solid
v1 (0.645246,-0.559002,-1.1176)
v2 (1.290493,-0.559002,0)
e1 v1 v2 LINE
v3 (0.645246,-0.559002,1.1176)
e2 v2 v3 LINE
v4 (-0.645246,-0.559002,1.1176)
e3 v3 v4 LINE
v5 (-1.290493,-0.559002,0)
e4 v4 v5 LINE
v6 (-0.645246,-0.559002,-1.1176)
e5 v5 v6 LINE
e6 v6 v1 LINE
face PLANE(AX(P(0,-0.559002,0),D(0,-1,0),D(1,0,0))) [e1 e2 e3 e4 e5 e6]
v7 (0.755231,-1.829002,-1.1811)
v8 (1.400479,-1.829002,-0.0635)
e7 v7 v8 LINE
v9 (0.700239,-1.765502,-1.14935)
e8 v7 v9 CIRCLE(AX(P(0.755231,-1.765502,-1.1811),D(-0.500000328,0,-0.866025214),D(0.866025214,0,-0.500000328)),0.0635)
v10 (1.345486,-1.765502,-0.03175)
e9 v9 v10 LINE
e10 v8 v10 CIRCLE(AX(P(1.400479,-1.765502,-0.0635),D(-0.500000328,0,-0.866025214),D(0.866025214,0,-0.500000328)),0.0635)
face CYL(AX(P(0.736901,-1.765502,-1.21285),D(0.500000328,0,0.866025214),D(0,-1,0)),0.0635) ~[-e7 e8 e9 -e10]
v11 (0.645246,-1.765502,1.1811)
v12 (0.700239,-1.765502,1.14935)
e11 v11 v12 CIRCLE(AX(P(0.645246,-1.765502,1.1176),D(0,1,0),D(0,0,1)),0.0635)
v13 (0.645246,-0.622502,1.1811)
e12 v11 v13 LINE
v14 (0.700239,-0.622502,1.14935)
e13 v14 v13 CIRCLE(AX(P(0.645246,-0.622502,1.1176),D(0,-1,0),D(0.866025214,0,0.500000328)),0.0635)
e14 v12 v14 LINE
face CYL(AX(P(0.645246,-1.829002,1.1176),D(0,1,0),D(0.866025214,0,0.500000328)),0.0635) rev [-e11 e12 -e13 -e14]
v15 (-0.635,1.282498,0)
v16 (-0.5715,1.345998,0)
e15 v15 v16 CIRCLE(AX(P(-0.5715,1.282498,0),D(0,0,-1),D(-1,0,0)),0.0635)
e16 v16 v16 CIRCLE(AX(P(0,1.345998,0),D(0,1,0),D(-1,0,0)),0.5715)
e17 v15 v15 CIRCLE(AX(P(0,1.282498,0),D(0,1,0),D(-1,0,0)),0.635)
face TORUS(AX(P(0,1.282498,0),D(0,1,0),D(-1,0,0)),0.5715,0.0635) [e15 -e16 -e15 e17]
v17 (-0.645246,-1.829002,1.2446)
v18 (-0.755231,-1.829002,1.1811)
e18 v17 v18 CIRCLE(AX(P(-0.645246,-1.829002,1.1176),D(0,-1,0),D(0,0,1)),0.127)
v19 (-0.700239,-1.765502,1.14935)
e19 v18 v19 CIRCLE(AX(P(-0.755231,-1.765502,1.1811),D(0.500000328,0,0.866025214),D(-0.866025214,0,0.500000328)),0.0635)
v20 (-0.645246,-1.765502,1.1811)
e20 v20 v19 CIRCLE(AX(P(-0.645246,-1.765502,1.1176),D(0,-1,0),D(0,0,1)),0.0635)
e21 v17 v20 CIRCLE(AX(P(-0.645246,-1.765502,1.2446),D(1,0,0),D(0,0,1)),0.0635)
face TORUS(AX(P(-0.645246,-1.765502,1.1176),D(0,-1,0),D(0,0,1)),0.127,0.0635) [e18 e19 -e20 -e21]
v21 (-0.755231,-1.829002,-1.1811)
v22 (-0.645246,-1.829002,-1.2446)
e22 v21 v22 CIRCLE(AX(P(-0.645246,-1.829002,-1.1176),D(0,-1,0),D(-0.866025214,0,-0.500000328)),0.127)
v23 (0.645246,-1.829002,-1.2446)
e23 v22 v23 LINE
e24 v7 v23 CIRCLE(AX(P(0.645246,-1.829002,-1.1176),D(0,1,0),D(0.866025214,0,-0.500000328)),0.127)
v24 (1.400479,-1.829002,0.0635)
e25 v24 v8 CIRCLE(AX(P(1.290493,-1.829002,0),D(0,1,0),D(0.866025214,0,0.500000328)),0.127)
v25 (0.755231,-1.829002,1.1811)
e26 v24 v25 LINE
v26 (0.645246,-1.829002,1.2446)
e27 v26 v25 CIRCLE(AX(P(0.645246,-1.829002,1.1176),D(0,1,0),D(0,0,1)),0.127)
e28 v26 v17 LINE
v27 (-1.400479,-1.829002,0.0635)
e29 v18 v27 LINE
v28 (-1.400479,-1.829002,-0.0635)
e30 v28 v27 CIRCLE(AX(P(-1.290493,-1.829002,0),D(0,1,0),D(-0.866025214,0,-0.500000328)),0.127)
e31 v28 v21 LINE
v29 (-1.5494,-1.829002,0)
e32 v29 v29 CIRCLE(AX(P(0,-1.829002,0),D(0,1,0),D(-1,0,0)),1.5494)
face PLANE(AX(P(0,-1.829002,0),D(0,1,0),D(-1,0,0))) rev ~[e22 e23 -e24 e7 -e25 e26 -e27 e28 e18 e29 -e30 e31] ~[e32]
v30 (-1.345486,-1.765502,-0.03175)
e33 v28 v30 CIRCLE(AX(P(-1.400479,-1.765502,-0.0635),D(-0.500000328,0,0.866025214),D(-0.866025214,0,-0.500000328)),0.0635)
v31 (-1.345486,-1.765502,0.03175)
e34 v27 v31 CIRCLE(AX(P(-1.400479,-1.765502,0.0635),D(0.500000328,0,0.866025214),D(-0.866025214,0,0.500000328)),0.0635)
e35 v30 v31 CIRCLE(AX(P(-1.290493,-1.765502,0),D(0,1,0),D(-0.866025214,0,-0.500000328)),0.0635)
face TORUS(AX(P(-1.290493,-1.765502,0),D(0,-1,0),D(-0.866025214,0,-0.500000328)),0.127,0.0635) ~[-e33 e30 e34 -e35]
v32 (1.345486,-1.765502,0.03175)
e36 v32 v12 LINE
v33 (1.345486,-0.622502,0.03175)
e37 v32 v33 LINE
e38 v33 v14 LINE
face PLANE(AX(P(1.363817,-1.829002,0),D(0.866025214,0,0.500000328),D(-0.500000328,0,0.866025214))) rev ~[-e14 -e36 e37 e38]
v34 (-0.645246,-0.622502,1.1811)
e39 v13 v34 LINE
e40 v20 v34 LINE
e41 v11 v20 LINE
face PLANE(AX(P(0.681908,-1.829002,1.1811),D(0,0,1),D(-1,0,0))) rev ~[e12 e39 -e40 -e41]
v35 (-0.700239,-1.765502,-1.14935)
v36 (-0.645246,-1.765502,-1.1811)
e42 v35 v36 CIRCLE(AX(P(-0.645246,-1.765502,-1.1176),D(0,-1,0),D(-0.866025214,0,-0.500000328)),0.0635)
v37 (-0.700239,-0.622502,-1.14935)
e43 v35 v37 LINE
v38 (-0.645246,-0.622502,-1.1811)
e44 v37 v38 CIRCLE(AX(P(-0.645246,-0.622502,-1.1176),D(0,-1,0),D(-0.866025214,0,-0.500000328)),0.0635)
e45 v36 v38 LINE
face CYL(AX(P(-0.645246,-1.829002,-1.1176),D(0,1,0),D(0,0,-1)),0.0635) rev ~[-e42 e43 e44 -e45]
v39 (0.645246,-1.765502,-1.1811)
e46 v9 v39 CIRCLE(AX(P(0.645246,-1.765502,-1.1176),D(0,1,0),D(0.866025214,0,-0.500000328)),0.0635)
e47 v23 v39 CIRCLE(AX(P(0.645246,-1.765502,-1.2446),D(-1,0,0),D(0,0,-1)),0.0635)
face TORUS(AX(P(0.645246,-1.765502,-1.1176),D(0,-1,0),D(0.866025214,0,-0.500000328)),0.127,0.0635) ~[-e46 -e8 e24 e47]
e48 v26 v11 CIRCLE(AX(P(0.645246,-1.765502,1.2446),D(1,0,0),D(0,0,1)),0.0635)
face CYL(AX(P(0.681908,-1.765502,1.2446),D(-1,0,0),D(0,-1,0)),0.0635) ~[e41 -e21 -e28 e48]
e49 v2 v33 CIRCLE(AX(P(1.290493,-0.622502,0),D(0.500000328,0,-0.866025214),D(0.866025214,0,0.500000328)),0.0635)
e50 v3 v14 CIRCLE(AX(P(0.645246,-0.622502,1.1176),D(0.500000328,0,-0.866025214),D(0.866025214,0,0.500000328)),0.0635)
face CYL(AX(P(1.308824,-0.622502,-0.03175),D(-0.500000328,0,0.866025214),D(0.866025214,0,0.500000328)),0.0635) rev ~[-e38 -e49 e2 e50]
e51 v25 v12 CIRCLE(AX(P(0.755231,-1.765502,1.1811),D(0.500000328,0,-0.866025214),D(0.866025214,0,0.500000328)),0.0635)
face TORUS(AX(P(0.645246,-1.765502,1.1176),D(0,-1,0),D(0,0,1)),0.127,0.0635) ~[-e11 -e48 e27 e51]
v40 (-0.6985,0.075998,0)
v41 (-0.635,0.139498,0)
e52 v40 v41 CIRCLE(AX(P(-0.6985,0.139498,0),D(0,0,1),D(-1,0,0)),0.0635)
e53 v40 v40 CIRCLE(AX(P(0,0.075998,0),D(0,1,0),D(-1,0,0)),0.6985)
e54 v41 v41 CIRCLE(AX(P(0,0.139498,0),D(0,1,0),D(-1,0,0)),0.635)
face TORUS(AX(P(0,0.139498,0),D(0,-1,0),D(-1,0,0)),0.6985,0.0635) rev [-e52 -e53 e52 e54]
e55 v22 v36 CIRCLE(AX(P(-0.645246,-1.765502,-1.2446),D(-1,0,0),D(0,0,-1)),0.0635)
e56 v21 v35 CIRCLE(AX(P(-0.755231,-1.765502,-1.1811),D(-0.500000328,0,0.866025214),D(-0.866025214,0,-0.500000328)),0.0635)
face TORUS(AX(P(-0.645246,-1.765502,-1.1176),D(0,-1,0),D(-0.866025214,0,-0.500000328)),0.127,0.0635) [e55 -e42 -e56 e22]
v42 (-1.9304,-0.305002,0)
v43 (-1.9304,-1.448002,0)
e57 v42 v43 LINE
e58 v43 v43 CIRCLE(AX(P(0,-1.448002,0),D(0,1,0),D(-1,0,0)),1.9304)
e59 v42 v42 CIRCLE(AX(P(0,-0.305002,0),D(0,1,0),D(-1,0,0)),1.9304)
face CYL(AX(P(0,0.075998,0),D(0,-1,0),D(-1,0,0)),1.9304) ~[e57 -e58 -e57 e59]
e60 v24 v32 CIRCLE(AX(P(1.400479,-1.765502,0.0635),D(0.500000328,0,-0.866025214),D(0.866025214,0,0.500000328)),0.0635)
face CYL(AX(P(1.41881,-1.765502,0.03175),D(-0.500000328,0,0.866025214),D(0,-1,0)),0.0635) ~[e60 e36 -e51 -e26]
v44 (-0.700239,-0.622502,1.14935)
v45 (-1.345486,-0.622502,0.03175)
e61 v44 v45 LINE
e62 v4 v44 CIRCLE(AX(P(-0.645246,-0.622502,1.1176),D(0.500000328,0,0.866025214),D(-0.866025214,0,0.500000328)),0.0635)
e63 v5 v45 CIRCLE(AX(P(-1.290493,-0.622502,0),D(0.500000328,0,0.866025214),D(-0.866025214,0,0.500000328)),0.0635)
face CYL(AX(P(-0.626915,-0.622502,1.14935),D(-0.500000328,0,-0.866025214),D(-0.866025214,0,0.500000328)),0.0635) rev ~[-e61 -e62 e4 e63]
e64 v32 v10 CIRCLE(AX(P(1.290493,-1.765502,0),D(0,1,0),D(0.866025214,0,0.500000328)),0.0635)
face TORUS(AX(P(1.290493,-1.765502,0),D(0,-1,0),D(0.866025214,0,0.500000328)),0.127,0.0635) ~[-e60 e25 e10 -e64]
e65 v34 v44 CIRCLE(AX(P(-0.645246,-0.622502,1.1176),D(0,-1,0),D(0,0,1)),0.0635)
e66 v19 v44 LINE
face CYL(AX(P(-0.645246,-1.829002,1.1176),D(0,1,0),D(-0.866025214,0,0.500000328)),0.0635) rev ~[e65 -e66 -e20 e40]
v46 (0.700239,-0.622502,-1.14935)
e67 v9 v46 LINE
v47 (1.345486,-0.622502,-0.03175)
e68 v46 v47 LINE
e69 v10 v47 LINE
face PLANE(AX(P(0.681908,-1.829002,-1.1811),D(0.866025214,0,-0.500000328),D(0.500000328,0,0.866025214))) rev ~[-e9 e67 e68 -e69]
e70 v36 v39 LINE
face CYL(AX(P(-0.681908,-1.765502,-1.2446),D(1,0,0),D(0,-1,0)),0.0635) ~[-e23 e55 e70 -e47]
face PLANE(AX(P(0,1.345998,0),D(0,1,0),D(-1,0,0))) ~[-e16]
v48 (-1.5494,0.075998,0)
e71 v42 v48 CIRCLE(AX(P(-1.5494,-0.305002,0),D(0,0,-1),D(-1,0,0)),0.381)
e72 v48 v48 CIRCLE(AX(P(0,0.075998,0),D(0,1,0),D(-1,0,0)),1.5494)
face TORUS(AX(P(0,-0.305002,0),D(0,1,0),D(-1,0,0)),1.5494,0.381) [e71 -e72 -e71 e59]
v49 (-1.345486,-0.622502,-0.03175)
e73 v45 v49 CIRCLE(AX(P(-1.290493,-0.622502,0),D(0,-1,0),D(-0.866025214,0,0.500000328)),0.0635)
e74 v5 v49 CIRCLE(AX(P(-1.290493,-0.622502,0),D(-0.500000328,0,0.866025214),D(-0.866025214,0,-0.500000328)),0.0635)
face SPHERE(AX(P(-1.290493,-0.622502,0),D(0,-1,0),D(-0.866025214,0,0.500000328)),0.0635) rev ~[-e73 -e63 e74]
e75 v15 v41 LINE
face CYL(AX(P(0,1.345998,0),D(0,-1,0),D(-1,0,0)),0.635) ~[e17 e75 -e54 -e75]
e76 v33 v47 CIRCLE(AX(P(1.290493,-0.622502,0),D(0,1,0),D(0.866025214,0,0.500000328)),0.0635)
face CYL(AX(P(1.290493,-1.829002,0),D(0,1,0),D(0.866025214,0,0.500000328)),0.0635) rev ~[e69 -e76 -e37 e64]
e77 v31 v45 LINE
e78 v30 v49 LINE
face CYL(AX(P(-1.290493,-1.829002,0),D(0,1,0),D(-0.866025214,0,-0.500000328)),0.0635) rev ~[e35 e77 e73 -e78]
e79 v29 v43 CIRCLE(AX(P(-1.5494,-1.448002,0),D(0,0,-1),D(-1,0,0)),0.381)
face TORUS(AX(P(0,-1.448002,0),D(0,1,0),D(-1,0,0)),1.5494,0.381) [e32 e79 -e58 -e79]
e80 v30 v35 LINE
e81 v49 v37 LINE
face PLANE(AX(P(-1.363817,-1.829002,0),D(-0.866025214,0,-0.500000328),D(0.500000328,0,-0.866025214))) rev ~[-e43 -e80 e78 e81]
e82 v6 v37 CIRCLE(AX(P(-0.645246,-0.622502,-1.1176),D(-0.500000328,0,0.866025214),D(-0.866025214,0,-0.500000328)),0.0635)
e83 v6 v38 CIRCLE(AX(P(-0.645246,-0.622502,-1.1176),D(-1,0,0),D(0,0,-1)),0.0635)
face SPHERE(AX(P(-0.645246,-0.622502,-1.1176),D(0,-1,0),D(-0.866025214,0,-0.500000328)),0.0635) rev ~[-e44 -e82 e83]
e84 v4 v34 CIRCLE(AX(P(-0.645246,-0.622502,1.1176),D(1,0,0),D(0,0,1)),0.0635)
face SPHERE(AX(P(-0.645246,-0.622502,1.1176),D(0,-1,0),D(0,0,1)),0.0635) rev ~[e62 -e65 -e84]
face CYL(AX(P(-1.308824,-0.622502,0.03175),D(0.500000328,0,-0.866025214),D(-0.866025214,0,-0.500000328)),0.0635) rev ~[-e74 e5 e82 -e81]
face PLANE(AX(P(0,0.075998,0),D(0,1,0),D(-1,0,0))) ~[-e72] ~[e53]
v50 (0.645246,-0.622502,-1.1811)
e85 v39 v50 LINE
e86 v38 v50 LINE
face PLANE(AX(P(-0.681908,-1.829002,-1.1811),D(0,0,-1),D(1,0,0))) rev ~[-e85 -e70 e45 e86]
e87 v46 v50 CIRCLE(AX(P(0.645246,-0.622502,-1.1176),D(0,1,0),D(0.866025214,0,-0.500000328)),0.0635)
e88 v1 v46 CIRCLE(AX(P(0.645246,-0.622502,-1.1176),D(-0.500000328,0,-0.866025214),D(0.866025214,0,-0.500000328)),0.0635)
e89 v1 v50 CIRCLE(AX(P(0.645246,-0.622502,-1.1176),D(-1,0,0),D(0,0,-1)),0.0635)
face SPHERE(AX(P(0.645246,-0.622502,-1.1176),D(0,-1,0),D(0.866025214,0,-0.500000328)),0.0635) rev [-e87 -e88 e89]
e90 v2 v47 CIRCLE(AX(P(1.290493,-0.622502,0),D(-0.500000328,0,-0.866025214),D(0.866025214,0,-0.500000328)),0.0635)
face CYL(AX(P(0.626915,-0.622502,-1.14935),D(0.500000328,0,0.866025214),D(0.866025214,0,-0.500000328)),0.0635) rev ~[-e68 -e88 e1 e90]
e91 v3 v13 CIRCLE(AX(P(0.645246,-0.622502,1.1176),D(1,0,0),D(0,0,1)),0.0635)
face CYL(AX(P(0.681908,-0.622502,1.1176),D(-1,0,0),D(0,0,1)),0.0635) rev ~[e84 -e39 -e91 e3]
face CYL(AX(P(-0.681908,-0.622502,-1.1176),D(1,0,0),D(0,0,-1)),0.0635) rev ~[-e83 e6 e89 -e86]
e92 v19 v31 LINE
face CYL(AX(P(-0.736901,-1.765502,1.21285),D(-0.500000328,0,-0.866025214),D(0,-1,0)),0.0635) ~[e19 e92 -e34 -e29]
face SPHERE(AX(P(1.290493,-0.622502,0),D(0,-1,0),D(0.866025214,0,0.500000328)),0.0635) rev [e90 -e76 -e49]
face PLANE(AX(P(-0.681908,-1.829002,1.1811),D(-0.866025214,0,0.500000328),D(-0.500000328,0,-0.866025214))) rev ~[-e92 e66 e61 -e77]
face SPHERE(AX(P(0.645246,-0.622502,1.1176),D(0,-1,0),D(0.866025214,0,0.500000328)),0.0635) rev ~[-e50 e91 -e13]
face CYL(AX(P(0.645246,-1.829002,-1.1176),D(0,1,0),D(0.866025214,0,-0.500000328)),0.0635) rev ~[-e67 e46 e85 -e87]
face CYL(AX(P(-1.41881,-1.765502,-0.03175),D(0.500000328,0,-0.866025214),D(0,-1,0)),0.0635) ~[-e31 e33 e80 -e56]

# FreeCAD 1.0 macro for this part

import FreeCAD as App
import Part
import Sketcher

V = App.Vector
Q = App.Units.Quantity


def edges_at(feature, points):
    """Names of the edges that pass closest to the given points."""
    edges = feature.Shape.Edges
    near = lambda p: min(range(len(edges)), key=lambda i: edges[i].distToShape(Part.Vertex(*p))[0])
    return sorted({f"Edge{near(p) + 1}" for p in points})

doc = App.newDocument("Part")
params = doc.addObject("Spreadsheet::Sheet", "Params")
for row, (alias, value) in enumerate([
    ("sketch1_height", "0.05 in"),
    ("sketch1_width", "0.076 in"),
    ("sketch1_width2", "0.025 in"),
    ("sketch1_height2", "0.125 in"),
    ("revolution_angle", "360 deg"),
    ("pocket1_length", "0.05 in"),
    ("fillet_radius", "0.015 in"),
    ("fillet2_radius", "0.0025 in"),
], start=1):
    params.set(f"A{row}", alias)
    params.set(f"B{row}", "=" + value)
    params.setAlias(f"B{row}", alias)

body = doc.addObject("PartDesign::Body", "Body")

# Sketch on XY plane
sketch1 = doc.addObject("Sketcher::SketchObject", "Sketch")
body.addObject(sketch1)
sketch1.AttachmentSupport = (doc.XY_Plane, [""])
sketch1.MapMode = "FlatFace"
sketch1.addGeometry(Part.LineSegment(V(-1.9, -1.8, 0), V(0, -1.8, 0)), False)
sketch1.addGeometry(Part.LineSegment(V(0, -1.8, 0), V(0, 1.3, 0)), False)
sketch1.addGeometry(Part.LineSegment(V(0, 1.3, 0), V(-0.6, 1.3, 0)), False)
sketch1.addGeometry(Part.LineSegment(V(-0.6, 1.3, 0), V(-0.6, 0.1, 0)), False)
sketch1.addGeometry(Part.LineSegment(V(-0.6, 0.1, 0), V(-1.9, 0.1, 0)), False)
sketch1.addGeometry(Part.LineSegment(V(-1.9, 0.1, 0), V(-1.9, -1.8, 0)), False)
sketch1.addConstraint(Sketcher.Constraint("Coincident", 0, 2, 1, 1))
sketch1.addConstraint(Sketcher.Constraint("Coincident", 1, 2, 2, 1))
sketch1.addConstraint(Sketcher.Constraint("Coincident", 2, 2, 3, 1))
sketch1.addConstraint(Sketcher.Constraint("Coincident", 3, 2, 4, 1))
sketch1.addConstraint(Sketcher.Constraint("Coincident", 4, 2, 5, 1))
sketch1.addConstraint(Sketcher.Constraint("Coincident", 5, 2, 0, 1))
sketch1.addConstraint(Sketcher.Constraint("Horizontal", 0))
sketch1.addConstraint(Sketcher.Constraint("Vertical", 1))
sketch1.addConstraint(Sketcher.Constraint("Horizontal", 2))
sketch1.addConstraint(Sketcher.Constraint("Vertical", 3))
sketch1.addConstraint(Sketcher.Constraint("Horizontal", 4))
sketch1.addConstraint(Sketcher.Constraint("Vertical", 5))
sketch1.addConstraint(Sketcher.Constraint("PointOnObject", 0, 2, -2))
sketch1.addConstraint(Sketcher.Constraint("DistanceY", 3, 2, 3, 1, Q("0.05 in")))
sketch1.addConstraint(Sketcher.Constraint("DistanceX", 0, 1, 0, 2, Q("0.076 in")))
sketch1.addConstraint(Sketcher.Constraint("DistanceX", 2, 2, 2, 1, Q("0.025 in")))
sketch1.addConstraint(Sketcher.Constraint("DistanceY", 1, 1, 1, 2, Q("0.125 in")))
sketch1.addConstraint(Sketcher.Constraint("DistanceY", 0, 2, -1, 1, 1.829002))
sketch1.setExpression("Constraints[13]", "Params.sketch1_height")
sketch1.setExpression("Constraints[14]", "Params.sketch1_width")
sketch1.setExpression("Constraints[15]", "Params.sketch1_width2")
sketch1.setExpression("Constraints[16]", "Params.sketch1_height2")
revolution = doc.addObject("PartDesign::Revolution", "Revolution")
body.addObject(revolution)
revolution.Profile = sketch1
revolution.ReferenceAxis = (sketch1, ["V_Axis"])
revolution.setExpression("Angle", "Params.revolution_angle")

# Sketch on XZ plane
sketch2 = doc.addObject("Sketcher::SketchObject", "Sketch001")
body.addObject(sketch2)
sketch2.AttachmentSupport = (doc.XZ_Plane, [""])
sketch2.MapMode = "FlatFace"
sketch2.AttachmentOffset = App.Placement(V(0, 0, 1.829002), App.Rotation())
sketch2.addGeometry(Part.LineSegment(V(0.7, 1.2, 0), V(-0.7, 1.2, 0)), False)
sketch2.addGeometry(Part.LineSegment(V(-0.7, 1.2, 0), V(-1.4, 0, 0)), False)
sketch2.addGeometry(Part.LineSegment(V(-1.4, 0, 0), V(-0.7, -1.2, 0)), False)
sketch2.addGeometry(Part.LineSegment(V(-0.7, -1.2, 0), V(0.7, -1.2, 0)), False)
sketch2.addGeometry(Part.LineSegment(V(0.7, -1.2, 0), V(1.4, 0, 0)), False)
sketch2.addGeometry(Part.LineSegment(V(1.4, 0, 0), V(0.7, 1.2, 0)), False)
sketch2.addConstraint(Sketcher.Constraint("Coincident", 0, 2, 1, 1))
sketch2.addConstraint(Sketcher.Constraint("Coincident", 1, 2, 2, 1))
sketch2.addConstraint(Sketcher.Constraint("Coincident", 2, 2, 3, 1))
sketch2.addConstraint(Sketcher.Constraint("Coincident", 3, 2, 4, 1))
sketch2.addConstraint(Sketcher.Constraint("Coincident", 4, 2, 5, 1))
sketch2.addConstraint(Sketcher.Constraint("Coincident", 5, 2, 0, 1))
sketch2.addConstraint(Sketcher.Constraint("Horizontal", 0))
sketch2.addConstraint(Sketcher.Constraint("Horizontal", 3))
sketch2.addConstraint(Sketcher.Constraint("Symmetric", 0, 2, 3, 2, -1, 1))
sketch2.addConstraint(Sketcher.Constraint("Symmetric", 1, 2, 4, 2, -1, 1))
sketch2.addConstraint(Sketcher.Constraint("PointOnObject", 1, 2, -1))
sketch2.addConstraint(Sketcher.Constraint("Parallel", 2, 5))
sketch2.addConstraint(Sketcher.Constraint("Vertical", 0, 2, 2, 2))
sketch2.addConstraint(Sketcher.Constraint("DistanceY", 2, 2, 0, 2, Q("0.093 in")))
sketch2.addConstraint(Sketcher.Constraint("DistanceX", 0, 2, 0, 1, 1.363816))
sketch2.addConstraint(Sketcher.Constraint("DistanceX", 1, 2, 0, 2, 0.681909))
pocket1 = doc.addObject("PartDesign::Pocket", "Pocket")
body.addObject(pocket1)
pocket1.Profile = sketch2
pocket1.setExpression("Length", "Params.pocket1_length")
doc.recompute()

fillet = doc.addObject("PartDesign::Fillet", "Fillet")
body.addObject(fillet)
fillet.Base = (pocket1, edges_at(pocket1, [(1.93, -1.829, 0), (1.93, 0.076, 0)]))
fillet.setExpression("Radius", "Params.fillet_radius")
doc.recompute()

fillet2 = doc.addObject("PartDesign::Fillet", "Fillet001")
body.addObject(fillet2)
fillet2.Base = (fillet, ["Edge1"])
fillet2.UseAllEdges = True
fillet2.setExpression("Radius", "Params.fillet2_radius")

doc.recompute()
